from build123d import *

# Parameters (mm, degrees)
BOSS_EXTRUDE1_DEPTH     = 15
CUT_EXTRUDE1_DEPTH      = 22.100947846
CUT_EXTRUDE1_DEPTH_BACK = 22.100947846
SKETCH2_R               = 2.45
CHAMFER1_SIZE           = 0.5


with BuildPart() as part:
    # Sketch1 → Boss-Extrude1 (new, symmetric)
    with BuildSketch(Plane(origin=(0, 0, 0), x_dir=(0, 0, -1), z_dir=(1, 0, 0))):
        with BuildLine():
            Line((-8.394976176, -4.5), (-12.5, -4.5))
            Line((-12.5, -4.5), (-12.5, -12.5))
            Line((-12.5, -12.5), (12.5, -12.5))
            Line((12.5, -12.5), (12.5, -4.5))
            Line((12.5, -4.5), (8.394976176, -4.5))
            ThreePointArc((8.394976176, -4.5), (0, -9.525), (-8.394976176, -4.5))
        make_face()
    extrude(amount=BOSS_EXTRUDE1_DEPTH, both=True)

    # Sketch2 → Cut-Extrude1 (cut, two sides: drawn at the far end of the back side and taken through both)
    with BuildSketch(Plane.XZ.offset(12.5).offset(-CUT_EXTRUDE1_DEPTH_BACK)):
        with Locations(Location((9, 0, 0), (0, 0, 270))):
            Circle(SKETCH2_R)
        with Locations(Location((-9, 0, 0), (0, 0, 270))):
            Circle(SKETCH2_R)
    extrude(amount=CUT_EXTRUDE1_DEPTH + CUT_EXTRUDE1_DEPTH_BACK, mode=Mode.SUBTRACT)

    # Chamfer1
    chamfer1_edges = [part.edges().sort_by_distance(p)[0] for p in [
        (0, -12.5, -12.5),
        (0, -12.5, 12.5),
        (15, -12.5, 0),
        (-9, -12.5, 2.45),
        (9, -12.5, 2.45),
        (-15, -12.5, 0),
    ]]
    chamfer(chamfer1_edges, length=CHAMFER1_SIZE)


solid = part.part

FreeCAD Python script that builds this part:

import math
import FreeCAD as App
import Part
import Sketcher

V = App.Vector


def edges_at(feature, points):
    """Names of the edges that pass closest to the given points."""
    edges = feature.Shape.Edges
    near = lambda p: min(range(len(edges)), key=lambda i: edges[i].distToShape(Part.Vertex(*p))[0])
    return sorted({f"Edge{near(p) + 1}" for p in points})

doc = App.newDocument("Part")
body = doc.addObject("PartDesign::Body", "Body")

# Sketch on YZ plane
sketch1 = body.newObject("Sketcher::SketchObject", "Sketch")
sketch1.AttachmentSupport = (doc.getObject("YZ_Plane"), [""])
sketch1.MapMode = "FlatFace"
sketch1.addGeometry(Part.LineSegment(V(-4.5, 8.394976, 0), V(-4.5, 12.5, 0)), False)
sketch1.addGeometry(Part.LineSegment(V(-4.5, 12.5, 0), V(-12.5, 12.5, 0)), False)
sketch1.addGeometry(Part.LineSegment(V(-12.5, 12.5, 0), V(-12.5, -12.5, 0)), False)
sketch1.addGeometry(Part.LineSegment(V(-12.5, -12.5, 0), V(-4.5, -12.5, 0)), False)
sketch1.addGeometry(Part.LineSegment(V(-4.5, -12.5, 0), V(-4.5, -8.394976, 0)), False)
sketch1.addGeometry(Part.ArcOfCircle(Part.Circle(V(0, 0, 0), V(0, 0, 1), 9.525), math.radians(118.192861), math.radians(241.807139)), False)
sketch1.addConstraint(Sketcher.Constraint("Coincident", 0, 2, 1, 1))
sketch1.addConstraint(Sketcher.Constraint("Coincident", 1, 2, 2, 1))
sketch1.addConstraint(Sketcher.Constraint("Coincident", 2, 2, 3, 1))
sketch1.addConstraint(Sketcher.Constraint("Coincident", 3, 2, 4, 1))
sketch1.addConstraint(Sketcher.Constraint("Coincident", 4, 2, 5, 2))
sketch1.addConstraint(Sketcher.Constraint("Coincident", 5, 1, 0, 1))
sketch1.addConstraint(Sketcher.Constraint("Vertical", 0))
sketch1.addConstraint(Sketcher.Constraint("Horizontal", 1))
sketch1.addConstraint(Sketcher.Constraint("Vertical", 2))
sketch1.addConstraint(Sketcher.Constraint("Horizontal", 3))
sketch1.addConstraint(Sketcher.Constraint("Vertical", 4))
sketch1.addConstraint(Sketcher.Constraint("Coincident", 5, 3, -1, 1))
sketch1.addConstraint(Sketcher.Constraint("Symmetric", 0, 2, 3, 2, -1))
sketch1.addConstraint(Sketcher.Constraint("DistanceX", 1, 2, 1, 1, 8.0))
sketch1.addConstraint(Sketcher.Constraint("DistanceY", 2, 2, 2, 1, 25.0))
sketch1.addConstraint(Sketcher.Constraint("Radius", 5, 9.525))
sketch1.addConstraint(Sketcher.Constraint("DistanceX", 0, 2, -1, 1, 4.5))
pad1 = body.newObject("PartDesign::Pad", "Pad")
pad1.Profile = sketch1
pad1.Length = 30
pad1.Midplane = True

# Sketch on XZ plane
sketch2 = body.newObject("Sketcher::SketchObject", "Sketch001")
sketch2.AttachmentSupport = (doc.getObject("XZ_Plane"), [""])
sketch2.MapMode = "FlatFace"
sketch2.AttachmentOffset = App.Placement(V(0, 0, 12.5), App.Rotation())
sketch2.addGeometry(Part.Circle(V(9, 0, 0), V(0, 0, 1), 2.45), False)
sketch2.addGeometry(Part.Circle(V(-9, 0, 0), V(0, 0, 1), 2.45), False)
sketch2.addConstraint(Sketcher.Constraint("Equal", 0, 1))
sketch2.addConstraint(Sketcher.Constraint("Symmetric", 0, 3, 1, 3, -1, 1))
sketch2.addConstraint(Sketcher.Constraint("PointOnObject", 0, 3, -1))
sketch2.addConstraint(Sketcher.Constraint("Diameter", 0, 4.9))
sketch2.addConstraint(Sketcher.Constraint("DistanceX", -1, 1, 0, 3, 9.0))
pocket1 = body.newObject("PartDesign::Pocket", "Pocket")
pocket1.Profile = sketch2
pocket1.Type = "ThroughAll"
pocket1.Midplane = True
doc.recompute()

chamfer = body.newObject("PartDesign::Chamfer", "Chamfer")
chamfer.Base = (pocket1, edges_at(pocket1, [
    (0, -12.5, -12.5),
    (0, -12.5, 12.5),
    (15, -12.5, 0),
    (-9, -12.5, 2.45),
    (9, -12.5, 2.45),
    (-15, -12.5, 0),
]))
chamfer.Size = 0.5

doc.recompute()
